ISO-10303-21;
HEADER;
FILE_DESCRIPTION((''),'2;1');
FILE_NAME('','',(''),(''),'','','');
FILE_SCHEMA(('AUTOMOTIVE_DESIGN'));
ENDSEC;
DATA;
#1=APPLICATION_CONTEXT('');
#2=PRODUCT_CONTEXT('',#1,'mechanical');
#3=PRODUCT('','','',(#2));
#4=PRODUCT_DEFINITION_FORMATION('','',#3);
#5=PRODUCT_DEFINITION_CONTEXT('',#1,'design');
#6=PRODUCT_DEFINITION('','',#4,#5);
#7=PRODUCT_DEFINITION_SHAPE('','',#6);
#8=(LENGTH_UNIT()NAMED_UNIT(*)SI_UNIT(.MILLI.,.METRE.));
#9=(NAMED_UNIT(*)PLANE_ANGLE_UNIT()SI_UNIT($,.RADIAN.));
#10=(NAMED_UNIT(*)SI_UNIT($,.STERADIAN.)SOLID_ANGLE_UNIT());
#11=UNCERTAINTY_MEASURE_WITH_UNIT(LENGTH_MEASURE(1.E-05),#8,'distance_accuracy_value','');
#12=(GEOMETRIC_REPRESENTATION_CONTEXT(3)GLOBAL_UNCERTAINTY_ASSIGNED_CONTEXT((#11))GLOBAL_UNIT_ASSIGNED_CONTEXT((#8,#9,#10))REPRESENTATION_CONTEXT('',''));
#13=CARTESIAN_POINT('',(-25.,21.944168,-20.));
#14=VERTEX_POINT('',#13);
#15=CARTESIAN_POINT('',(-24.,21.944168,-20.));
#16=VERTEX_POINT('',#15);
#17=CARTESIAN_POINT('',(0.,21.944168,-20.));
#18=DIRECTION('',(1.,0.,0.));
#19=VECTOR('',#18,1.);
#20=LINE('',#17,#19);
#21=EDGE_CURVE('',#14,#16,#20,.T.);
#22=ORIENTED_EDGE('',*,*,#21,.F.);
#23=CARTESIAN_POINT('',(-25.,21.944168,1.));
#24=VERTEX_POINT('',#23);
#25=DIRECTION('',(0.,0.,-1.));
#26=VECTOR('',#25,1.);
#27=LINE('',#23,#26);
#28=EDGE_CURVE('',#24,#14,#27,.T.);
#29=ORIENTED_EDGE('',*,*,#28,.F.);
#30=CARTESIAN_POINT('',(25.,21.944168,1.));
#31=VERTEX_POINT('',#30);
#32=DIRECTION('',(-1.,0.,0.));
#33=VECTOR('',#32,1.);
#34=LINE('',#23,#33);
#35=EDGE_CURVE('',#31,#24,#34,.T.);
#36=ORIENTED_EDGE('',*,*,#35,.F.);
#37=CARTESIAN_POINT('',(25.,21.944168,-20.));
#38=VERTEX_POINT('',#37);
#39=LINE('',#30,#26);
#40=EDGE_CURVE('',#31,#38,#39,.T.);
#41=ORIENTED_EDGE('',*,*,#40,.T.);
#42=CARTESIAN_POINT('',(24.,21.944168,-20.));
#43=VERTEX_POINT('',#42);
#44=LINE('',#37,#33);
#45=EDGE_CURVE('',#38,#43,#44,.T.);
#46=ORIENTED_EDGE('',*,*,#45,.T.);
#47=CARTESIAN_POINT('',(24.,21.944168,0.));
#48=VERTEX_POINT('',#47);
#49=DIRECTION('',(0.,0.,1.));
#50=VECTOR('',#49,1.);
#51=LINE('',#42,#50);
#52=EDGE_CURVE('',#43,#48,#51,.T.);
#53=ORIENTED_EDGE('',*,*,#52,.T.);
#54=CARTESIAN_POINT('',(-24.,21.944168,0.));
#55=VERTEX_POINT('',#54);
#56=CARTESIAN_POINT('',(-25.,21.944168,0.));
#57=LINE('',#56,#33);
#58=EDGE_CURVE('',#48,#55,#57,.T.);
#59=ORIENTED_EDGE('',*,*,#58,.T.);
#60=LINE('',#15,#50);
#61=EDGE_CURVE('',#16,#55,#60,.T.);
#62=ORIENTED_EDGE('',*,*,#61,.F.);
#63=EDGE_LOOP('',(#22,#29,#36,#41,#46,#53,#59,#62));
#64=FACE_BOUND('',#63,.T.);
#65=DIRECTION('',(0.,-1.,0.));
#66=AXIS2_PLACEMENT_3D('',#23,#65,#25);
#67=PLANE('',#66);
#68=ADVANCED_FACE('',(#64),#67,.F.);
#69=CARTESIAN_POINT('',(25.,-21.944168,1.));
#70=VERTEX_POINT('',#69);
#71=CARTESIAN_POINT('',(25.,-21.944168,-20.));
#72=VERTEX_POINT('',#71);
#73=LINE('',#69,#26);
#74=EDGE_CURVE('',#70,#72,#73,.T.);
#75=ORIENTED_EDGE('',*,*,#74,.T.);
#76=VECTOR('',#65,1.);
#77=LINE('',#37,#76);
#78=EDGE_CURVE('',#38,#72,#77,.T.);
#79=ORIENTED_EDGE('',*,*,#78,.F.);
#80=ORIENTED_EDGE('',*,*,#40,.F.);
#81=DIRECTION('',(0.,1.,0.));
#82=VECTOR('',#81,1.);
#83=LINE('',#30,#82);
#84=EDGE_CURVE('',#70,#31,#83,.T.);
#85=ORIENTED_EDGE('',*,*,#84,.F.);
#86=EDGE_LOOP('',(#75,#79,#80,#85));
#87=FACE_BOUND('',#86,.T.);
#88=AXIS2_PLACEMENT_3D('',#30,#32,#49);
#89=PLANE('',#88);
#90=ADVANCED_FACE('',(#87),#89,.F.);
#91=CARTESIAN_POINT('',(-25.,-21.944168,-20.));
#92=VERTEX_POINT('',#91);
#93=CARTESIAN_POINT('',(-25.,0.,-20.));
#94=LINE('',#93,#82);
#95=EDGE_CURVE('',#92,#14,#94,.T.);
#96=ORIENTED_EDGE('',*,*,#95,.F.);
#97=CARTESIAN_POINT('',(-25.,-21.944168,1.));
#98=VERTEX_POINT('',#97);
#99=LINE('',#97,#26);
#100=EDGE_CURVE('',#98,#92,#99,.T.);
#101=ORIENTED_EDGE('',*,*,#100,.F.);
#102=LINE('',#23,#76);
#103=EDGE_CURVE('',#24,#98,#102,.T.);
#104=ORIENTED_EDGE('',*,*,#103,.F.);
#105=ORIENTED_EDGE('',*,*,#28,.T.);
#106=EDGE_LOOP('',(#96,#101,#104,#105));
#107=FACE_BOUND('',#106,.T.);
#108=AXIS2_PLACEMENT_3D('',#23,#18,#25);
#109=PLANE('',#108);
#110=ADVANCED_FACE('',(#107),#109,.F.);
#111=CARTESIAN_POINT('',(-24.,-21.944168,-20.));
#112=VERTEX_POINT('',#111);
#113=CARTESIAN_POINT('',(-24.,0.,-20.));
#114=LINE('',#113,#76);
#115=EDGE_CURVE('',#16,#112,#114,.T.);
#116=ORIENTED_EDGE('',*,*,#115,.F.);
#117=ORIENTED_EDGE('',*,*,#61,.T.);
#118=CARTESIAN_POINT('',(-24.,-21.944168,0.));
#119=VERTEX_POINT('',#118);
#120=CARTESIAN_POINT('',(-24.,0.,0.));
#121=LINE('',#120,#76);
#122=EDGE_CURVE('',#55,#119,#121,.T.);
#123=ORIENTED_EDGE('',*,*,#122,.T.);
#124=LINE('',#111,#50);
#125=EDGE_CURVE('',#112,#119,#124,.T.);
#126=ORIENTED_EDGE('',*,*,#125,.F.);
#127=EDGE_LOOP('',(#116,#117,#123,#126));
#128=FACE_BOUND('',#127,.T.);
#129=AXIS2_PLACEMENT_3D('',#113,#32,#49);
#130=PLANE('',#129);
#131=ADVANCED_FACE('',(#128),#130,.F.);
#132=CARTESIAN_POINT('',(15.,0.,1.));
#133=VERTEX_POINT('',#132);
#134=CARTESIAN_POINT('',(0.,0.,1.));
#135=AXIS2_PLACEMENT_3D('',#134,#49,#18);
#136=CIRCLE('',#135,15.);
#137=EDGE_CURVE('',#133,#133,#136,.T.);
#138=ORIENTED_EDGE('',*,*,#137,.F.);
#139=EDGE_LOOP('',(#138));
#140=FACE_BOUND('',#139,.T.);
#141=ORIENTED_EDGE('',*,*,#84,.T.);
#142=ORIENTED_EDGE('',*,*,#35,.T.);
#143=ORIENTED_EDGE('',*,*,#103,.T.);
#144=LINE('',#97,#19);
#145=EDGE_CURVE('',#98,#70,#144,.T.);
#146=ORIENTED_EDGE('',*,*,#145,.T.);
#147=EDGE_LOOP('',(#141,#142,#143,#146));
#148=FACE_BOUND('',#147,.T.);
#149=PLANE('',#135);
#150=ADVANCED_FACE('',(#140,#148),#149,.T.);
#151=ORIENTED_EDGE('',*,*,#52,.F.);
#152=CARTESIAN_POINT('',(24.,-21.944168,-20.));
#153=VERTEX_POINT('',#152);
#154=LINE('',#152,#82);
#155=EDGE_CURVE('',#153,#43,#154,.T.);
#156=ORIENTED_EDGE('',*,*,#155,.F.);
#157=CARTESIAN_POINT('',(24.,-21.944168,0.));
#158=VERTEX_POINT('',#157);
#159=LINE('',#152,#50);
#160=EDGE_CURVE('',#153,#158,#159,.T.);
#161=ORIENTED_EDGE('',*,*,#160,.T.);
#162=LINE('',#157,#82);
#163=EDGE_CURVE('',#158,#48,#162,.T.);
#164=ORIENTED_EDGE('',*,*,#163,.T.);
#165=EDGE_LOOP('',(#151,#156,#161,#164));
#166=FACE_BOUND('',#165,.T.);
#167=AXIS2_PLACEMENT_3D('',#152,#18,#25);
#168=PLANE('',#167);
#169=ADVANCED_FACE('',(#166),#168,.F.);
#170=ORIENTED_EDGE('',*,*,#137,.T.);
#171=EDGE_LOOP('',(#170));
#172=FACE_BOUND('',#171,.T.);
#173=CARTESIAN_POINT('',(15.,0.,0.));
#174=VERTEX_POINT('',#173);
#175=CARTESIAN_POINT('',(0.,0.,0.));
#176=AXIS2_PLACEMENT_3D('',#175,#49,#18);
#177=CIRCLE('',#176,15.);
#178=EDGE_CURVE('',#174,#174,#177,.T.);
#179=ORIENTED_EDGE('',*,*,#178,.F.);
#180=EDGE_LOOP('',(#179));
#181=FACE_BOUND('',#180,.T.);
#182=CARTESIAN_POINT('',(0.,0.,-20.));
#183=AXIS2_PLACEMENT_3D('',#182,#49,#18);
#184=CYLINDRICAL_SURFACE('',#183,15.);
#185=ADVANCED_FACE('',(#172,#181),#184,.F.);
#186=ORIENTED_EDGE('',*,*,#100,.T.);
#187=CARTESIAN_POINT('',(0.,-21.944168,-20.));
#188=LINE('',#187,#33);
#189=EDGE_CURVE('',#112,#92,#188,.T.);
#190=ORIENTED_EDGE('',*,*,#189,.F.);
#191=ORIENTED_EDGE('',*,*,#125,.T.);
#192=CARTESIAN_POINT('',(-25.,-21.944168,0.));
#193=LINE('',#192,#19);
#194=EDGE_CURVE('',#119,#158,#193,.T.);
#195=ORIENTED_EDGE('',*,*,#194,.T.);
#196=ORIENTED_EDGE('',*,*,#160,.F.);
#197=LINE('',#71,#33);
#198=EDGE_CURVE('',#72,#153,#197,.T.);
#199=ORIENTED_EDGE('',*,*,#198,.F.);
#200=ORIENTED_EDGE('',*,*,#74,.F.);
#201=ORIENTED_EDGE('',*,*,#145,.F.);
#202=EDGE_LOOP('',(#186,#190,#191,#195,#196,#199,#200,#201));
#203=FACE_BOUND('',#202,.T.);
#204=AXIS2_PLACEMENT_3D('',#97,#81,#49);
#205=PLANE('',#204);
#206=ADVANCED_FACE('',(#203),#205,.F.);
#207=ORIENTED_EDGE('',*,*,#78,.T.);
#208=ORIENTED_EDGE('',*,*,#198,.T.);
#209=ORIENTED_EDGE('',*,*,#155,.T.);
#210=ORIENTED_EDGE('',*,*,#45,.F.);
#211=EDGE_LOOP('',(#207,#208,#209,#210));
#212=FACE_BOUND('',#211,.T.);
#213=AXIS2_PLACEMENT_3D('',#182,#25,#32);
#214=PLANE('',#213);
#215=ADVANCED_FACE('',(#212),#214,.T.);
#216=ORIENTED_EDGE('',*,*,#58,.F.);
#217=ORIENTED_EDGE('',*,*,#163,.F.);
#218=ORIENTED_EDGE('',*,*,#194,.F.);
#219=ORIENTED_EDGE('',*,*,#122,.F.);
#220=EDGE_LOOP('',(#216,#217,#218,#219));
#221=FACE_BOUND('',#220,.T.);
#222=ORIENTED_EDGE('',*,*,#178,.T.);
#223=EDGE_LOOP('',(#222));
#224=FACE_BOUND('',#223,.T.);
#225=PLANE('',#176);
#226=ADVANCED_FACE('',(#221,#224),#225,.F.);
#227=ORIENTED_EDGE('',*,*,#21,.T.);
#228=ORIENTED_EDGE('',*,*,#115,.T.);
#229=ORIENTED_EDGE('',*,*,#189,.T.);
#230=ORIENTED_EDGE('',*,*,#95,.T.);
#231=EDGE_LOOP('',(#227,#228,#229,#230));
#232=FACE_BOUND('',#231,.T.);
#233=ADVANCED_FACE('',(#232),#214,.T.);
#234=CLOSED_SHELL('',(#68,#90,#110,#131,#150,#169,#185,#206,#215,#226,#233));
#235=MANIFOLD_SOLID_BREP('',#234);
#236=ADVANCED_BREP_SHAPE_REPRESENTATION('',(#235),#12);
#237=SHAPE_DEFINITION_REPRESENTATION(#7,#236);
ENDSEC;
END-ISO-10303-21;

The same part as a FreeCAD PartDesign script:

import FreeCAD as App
import Part
import Sketcher

doc = App.newDocument("Part")
params = doc.addObject("Spreadsheet::Sheet", "Params")
for row, (alias, value) in enumerate([
    ("sketch1_width", "50.000001 mm"),
    ("pad1_length", "1 mm"),
    ("sketch2_width", "1 mm"),
    ("pad2_length", "20 mm"),
    ("sketch3_diameter", "30 mm"),
], start=1):
    params.set(f"A{row}", alias)
    params.set(f"B{row}", "=" + value)
    params.setAlias(f"B{row}", alias)

body = doc.addObject("PartDesign::Body", "Body")

sketch1 = body.newObject("Sketcher::SketchObject", "Sketch")
sketch1.AttachmentSupport = (doc.getObject("XY_Plane"), [""])
sketch1.MapMode = "FlatFace"
sketch1.addGeometry([
    Part.LineSegment(App.Vector(-25, 22, 0), App.Vector(-25, -22, 0)),
    Part.LineSegment(App.Vector(-25, -22, 0), App.Vector(25, -22, 0)),
    Part.LineSegment(App.Vector(25, -22, 0), App.Vector(25, 22, 0)),
    Part.LineSegment(App.Vector(25, 22, 0), App.Vector(-25, 22, 0)),
], False)
sketch1.addConstraint([
    Sketcher.Constraint("Coincident", 0, 2, 1, 1),
    Sketcher.Constraint("Coincident", 1, 2, 2, 1),
    Sketcher.Constraint("Coincident", 2, 2, 3, 1),
    Sketcher.Constraint("Coincident", 3, 2, 0, 1),
    Sketcher.Constraint("Vertical", 0),
    Sketcher.Constraint("Horizontal", 1),
    Sketcher.Constraint("Vertical", 2),
    Sketcher.Constraint("Horizontal", 3),
    Sketcher.Constraint("Symmetric", 0, 2, 2, 2, -1, 1),
    Sketcher.Constraint("DistanceX", 1, 1, 1, 2, 50.000001),
    Sketcher.Constraint("DistanceY", 0, 2, 0, 1, 43.888335),
])
sketch1.setExpression("Constraints[9]", "Params.sketch1_width")
pad1 = body.newObject("PartDesign::Pad", "Pad")
pad1.Profile = sketch1
pad1.setExpression("Length", "Params.pad1_length")

sketch2 = body.newObject("Sketcher::SketchObject", "Sketch001")
sketch2.AttachmentSupport = (doc.getObject("XY_Plane"), [""])
sketch2.MapMode = "FlatFace"
sketch2.addGeometry([
    Part.LineSegment(App.Vector(-25, 21.9, 0), App.Vector(-24, 21.9, 0)),
    Part.LineSegment(App.Vector(-24, 21.9, 0), App.Vector(-24, -21.9, 0)),
    Part.LineSegment(App.Vector(-24, -21.9, 0), App.Vector(-25, -21.9, 0)),
    Part.LineSegment(App.Vector(-25, -21.9, 0), App.Vector(-25, 21.9, 0)),
    Part.LineSegment(App.Vector(25, 21.9, 0), App.Vector(25, -21.9, 0)),
    Part.LineSegment(App.Vector(25, -21.9, 0), App.Vector(24, -21.9, 0)),
    Part.LineSegment(App.Vector(24, -21.9, 0), App.Vector(24, 21.9, 0)),
    Part.LineSegment(App.Vector(24, 21.9, 0), App.Vector(25, 21.9, 0)),
], False)
sketch2.addConstraint([
    Sketcher.Constraint("Coincident", 0, 2, 1, 1),
    Sketcher.Constraint("Coincident", 1, 2, 2, 1),
    Sketcher.Constraint("Coincident", 2, 2, 3, 1),
    Sketcher.Constraint("Coincident", 3, 2, 0, 1),
    Sketcher.Constraint("Coincident", 4, 2, 5, 1),
    Sketcher.Constraint("Coincident", 5, 2, 6, 1),
    Sketcher.Constraint("Coincident", 6, 2, 7, 1),
    Sketcher.Constraint("Coincident", 7, 2, 4, 1),
    Sketcher.Constraint("Horizontal", 0),
    Sketcher.Constraint("Vertical", 1),
    Sketcher.Constraint("Horizontal", 2),
    Sketcher.Constraint("Vertical", 3),
    Sketcher.Constraint("Vertical", 4),
    Sketcher.Constraint("Horizontal", 5),
    Sketcher.Constraint("Vertical", 6),
    Sketcher.Constraint("Horizontal", 7),
    Sketcher.Constraint("Symmetric", 3, 2, 4, 2, -1, 1),
    Sketcher.Constraint("Symmetric", 1, 2, 6, 2, -1, 1),
    Sketcher.Constraint("Horizontal", 2, 2, 4, 2),
    Sketcher.Constraint("DistanceX", 0, 1, 0, 2, 1.0),
    Sketcher.Constraint("DistanceX", 0, 2, -1, 1, 24.0),
    Sketcher.Constraint("DistanceY", 1, 2, 1, 1, 43.888335),
])
sketch2.setExpression("Constraints[19]", "Params.sketch2_width")
pad2 = body.newObject("PartDesign::Pad", "Pad001")
pad2.Profile = sketch2
pad2.setExpression("Length", "Params.pad2_length")
pad2.Reversed = True

sketch3 = body.newObject("Sketcher::SketchObject", "Sketch002")
sketch3.AttachmentSupport = (doc.getObject("XY_Plane"), [""])
sketch3.MapMode = "FlatFace"
sketch3.AttachmentOffset = App.Placement(App.Vector(0, 0, 1), App.Rotation())
sketch3.addGeometry(Part.Circle(App.Vector(0, 0, 0), App.Vector(0, 0, 1), 15), False)
sketch3.addConstraint([
    Sketcher.Constraint("Coincident", 0, 3, -1, 1),
    Sketcher.Constraint("Diameter", 0, 30.0),
])
sketch3.setExpression("Constraints[1]", "Params.sketch3_diameter")
pocket1 = body.newObject("PartDesign::Pocket", "Pocket")
pocket1.Profile = sketch3
pocket1.Type = "ThroughAll"

doc.recompute()
